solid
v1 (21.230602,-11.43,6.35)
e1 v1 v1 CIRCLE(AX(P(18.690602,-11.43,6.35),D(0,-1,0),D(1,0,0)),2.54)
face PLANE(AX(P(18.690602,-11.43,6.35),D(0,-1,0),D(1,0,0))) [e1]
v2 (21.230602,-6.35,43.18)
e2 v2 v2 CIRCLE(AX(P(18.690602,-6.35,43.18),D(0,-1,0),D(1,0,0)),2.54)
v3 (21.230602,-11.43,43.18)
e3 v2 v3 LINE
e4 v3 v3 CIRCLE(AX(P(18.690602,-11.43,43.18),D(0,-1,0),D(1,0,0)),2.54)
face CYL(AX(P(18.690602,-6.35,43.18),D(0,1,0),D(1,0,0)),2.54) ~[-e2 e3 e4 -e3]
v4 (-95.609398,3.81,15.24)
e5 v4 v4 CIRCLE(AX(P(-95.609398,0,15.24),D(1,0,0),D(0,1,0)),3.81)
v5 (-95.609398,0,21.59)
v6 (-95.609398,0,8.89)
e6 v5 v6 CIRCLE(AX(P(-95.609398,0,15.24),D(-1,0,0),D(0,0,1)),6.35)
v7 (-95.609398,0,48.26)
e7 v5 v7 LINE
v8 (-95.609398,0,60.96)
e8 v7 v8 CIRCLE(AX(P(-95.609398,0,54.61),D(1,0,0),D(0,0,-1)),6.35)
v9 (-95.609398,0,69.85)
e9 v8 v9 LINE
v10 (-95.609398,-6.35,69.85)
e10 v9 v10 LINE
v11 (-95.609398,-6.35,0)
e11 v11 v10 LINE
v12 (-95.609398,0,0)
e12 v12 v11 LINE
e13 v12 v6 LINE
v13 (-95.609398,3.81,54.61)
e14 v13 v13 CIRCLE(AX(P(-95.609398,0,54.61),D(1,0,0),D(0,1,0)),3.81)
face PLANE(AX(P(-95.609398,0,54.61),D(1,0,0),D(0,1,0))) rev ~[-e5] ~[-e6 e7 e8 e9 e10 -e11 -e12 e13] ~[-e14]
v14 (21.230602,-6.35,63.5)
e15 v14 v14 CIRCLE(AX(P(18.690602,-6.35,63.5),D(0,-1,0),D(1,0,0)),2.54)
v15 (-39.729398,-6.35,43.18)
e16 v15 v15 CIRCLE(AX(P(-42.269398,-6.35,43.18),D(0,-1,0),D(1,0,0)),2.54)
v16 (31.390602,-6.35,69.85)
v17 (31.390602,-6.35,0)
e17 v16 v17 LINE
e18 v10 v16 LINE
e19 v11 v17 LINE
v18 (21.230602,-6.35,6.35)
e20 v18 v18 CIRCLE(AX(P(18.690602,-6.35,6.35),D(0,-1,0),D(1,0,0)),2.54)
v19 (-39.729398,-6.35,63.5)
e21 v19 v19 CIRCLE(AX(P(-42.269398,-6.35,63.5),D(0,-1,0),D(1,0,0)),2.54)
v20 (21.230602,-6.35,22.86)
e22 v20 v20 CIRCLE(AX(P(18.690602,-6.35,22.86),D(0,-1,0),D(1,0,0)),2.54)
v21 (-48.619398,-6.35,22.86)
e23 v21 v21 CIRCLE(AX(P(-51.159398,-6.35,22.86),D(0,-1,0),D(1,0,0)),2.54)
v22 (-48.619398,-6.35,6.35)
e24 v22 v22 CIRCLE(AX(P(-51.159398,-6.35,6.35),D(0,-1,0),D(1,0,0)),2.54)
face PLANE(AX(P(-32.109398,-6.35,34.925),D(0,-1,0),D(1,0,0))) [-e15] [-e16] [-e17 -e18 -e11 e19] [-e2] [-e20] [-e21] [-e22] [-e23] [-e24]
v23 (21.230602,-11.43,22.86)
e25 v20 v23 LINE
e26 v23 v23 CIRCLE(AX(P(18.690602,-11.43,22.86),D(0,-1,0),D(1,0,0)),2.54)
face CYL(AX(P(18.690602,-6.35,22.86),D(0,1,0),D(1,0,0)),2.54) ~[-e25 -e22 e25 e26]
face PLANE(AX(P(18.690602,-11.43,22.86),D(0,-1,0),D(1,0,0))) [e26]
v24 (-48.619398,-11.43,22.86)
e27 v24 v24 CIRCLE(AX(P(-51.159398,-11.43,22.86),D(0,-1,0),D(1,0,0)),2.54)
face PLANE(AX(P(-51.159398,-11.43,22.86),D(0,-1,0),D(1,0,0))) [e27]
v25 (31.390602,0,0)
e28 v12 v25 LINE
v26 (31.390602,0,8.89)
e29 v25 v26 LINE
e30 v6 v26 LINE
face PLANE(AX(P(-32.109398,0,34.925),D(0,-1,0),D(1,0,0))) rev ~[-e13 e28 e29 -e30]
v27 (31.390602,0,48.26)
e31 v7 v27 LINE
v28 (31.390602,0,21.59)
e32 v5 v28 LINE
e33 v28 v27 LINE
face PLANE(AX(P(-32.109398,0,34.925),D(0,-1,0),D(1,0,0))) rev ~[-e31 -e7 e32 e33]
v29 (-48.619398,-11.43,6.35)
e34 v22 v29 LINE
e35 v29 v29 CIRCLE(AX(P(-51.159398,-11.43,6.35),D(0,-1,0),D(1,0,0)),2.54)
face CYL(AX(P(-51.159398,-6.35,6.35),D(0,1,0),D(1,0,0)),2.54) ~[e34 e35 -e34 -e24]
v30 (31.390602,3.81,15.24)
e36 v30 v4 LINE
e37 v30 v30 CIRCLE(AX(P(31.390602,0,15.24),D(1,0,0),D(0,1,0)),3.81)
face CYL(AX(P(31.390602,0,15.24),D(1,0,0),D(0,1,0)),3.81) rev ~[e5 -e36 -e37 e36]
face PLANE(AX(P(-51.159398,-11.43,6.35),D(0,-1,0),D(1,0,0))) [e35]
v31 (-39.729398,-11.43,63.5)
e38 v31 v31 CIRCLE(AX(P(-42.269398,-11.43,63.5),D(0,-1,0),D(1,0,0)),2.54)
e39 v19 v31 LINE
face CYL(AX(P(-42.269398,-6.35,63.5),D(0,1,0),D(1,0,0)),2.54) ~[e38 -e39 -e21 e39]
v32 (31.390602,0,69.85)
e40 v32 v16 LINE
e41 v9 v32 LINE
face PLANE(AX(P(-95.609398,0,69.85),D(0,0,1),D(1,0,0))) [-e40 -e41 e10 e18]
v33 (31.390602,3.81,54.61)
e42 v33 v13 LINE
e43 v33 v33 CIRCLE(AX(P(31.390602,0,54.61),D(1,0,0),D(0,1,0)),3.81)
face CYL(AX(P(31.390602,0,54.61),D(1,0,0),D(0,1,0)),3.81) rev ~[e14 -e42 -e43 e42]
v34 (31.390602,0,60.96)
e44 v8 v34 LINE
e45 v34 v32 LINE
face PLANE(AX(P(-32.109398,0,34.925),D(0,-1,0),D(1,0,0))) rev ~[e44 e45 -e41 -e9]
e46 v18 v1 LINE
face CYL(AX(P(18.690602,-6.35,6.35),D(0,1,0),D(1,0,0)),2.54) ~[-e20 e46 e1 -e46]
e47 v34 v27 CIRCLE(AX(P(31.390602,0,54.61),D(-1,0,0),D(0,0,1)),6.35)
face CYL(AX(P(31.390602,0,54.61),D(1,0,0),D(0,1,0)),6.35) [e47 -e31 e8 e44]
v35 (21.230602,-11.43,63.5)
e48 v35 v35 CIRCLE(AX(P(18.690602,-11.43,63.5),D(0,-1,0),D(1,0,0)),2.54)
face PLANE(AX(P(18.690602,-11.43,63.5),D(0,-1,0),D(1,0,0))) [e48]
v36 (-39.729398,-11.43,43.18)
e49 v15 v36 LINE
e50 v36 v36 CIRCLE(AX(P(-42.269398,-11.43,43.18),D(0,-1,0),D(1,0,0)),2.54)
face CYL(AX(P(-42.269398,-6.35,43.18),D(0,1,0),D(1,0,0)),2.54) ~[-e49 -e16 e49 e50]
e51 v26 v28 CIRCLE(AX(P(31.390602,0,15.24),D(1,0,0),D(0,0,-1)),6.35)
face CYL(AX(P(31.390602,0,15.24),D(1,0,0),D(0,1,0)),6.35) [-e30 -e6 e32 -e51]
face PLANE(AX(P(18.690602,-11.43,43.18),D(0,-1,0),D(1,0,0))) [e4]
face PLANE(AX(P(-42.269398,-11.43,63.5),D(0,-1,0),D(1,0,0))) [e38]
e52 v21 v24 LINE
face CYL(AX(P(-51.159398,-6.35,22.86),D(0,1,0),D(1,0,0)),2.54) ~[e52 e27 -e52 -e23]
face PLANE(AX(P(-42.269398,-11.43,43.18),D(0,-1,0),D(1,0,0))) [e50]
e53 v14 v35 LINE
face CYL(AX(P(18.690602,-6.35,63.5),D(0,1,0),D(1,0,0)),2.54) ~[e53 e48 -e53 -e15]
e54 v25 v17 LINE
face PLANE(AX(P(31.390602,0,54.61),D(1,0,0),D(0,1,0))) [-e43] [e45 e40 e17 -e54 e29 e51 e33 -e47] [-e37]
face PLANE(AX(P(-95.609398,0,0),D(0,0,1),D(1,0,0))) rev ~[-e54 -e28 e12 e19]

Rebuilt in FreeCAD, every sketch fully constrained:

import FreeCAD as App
import Part
import Sketcher

V = App.Vector
Q = App.Units.Quantity

doc = App.newDocument("Part")
body = doc.addObject("PartDesign::Body", "Body")

# Sketch on XZ plane
sketch1 = doc.addObject("Sketcher::SketchObject", "Sketch")
body.addObject(sketch1)
sketch1.AttachmentSupport = (doc.XZ_Plane, [""])
sketch1.MapMode = "FlatFace"
sketch1.addGeometry(Part.LineSegment(V(-96, 70, 0), V(-96, 0, 0)), False)
sketch1.addGeometry(Part.LineSegment(V(-96, 0, 0), V(31, 0, 0)), False)
sketch1.addGeometry(Part.LineSegment(V(31, 0, 0), V(31, 70, 0)), False)
sketch1.addGeometry(Part.LineSegment(V(31, 70, 0), V(-96, 70, 0)), False)
sketch1.addConstraint(Sketcher.Constraint("Coincident", 0, 2, 1, 1))
sketch1.addConstraint(Sketcher.Constraint("Coincident", 1, 2, 2, 1))
sketch1.addConstraint(Sketcher.Constraint("Coincident", 2, 2, 3, 1))
sketch1.addConstraint(Sketcher.Constraint("Coincident", 3, 2, 0, 1))
sketch1.addConstraint(Sketcher.Constraint("Vertical", 0))
sketch1.addConstraint(Sketcher.Constraint("Horizontal", 1))
sketch1.addConstraint(Sketcher.Constraint("Vertical", 2))
sketch1.addConstraint(Sketcher.Constraint("Horizontal", 3))
sketch1.addConstraint(Sketcher.Constraint("PointOnObject", 0, 2, -1))
sketch1.addConstraint(Sketcher.Constraint("DistanceX", 1, 1, 1, 2, Q("5 in")))
sketch1.addConstraint(Sketcher.Constraint("DistanceY", 0, 2, 0, 1, Q("2.75 in")))
sketch1.addConstraint(Sketcher.Constraint("DistanceX", 0, 2, -1, 1, 95.609398))
pad1 = doc.addObject("PartDesign::Pad", "Pad")
body.addObject(pad1)
pad1.Profile = sketch1
pad1.Length = Q("0.25 in")

# Sketch on YZ plane
sketch2 = doc.addObject("Sketcher::SketchObject", "Sketch001")
body.addObject(sketch2)
sketch2.AttachmentSupport = (doc.YZ_Plane, [""])
sketch2.MapMode = "FlatFace"
sketch2.AttachmentOffset = App.Placement(V(0, 0, 31.390602), App.Rotation())
sketch2.addGeometry(Part.Circle(V(0, 55, 0), V(0, 0, 1), 6), False)
sketch2.addGeometry(Part.Circle(V(0, 15, 0), V(0, 0, 1), 6), False)
sketch2.addConstraint(Sketcher.Constraint("Equal", 0, 1))
sketch2.addConstraint(Sketcher.Constraint("PointOnObject", 0, 3, -2))
sketch2.addConstraint(Sketcher.Constraint("PointOnObject", 1, 3, -2))
sketch2.addConstraint(Sketcher.Constraint("Diameter", 0, Q("0.5 in")))
sketch2.addConstraint(Sketcher.Constraint("DistanceY", -1, 1, 1, 3, Q("0.6 in")))
sketch2.addConstraint(Sketcher.Constraint("DistanceY", -1, 1, 0, 3, Q("2.15 in")))
pad2 = doc.addObject("PartDesign::Pad", "Pad001")
body.addObject(pad2)
pad2.Profile = sketch2
pad2.Length = Q("5 in")
pad2.Reversed = True

# Sketch on YZ plane
sketch3 = doc.addObject("Sketcher::SketchObject", "Sketch002")
body.addObject(sketch3)
sketch3.AttachmentSupport = (doc.YZ_Plane, [""])
sketch3.MapMode = "FlatFace"
sketch3.AttachmentOffset = App.Placement(V(0, 0, 31.390602), App.Rotation())
sketch3.addGeometry(Part.Circle(V(0, 54.6, 0), V(0, 0, 1), 3.8), False)
sketch3.addGeometry(Part.Circle(V(0, 15.2, 0), V(0, 0, 1), 3.8), False)
sketch3.addConstraint(Sketcher.Constraint("Equal", 0, 1))
sketch3.addConstraint(Sketcher.Constraint("PointOnObject", 0, 3, -2))
sketch3.addConstraint(Sketcher.Constraint("PointOnObject", 1, 3, -2))
sketch3.addConstraint(Sketcher.Constraint("Diameter", 0, Q("0.3 in")))
sketch3.addConstraint(Sketcher.Constraint("DistanceY", -1, 1, 1, 3, Q("0.6 in")))
sketch3.addConstraint(Sketcher.Constraint("DistanceY", -1, 1, 0, 3, Q("2.15 in")))
pocket1 = doc.addObject("PartDesign::Pocket", "Pocket")
body.addObject(pocket1)
pocket1.Profile = sketch3
pocket1.Length = Q("5 in")

# Sketch on XZ plane
sketch4 = doc.addObject("Sketcher::SketchObject", "Sketch003")
body.addObject(sketch4)
sketch4.AttachmentSupport = (doc.XZ_Plane, [""])
sketch4.MapMode = "FlatFace"
sketch4.AttachmentOffset = App.Placement(V(0, 0, 0.25 * 25.4), App.Rotation())
sketch4.addGeometry(Part.Circle(V(-51.2, 6.3, 0), V(0, 0, 1), 2.5), False)
sketch4.addGeometry(Part.Circle(V(-51.2, 22.9, 0), V(0, 0, 1), 2.5), False)
sketch4.addGeometry(Part.Circle(V(18.7, 6.3, 0), V(0, 0, 1), 2.5), False)
sketch4.addGeometry(Part.Circle(V(18.7, 22.9, 0), V(0, 0, 1), 2.5), False)
sketch4.addConstraint(Sketcher.Constraint("Equal", 0, 1))
sketch4.addConstraint(Sketcher.Constraint("Equal", 1, 2))
sketch4.addConstraint(Sketcher.Constraint("Equal", 2, 3))
sketch4.addConstraint(Sketcher.Constraint("Horizontal", 0, 3, 2, 3))
sketch4.addConstraint(Sketcher.Constraint("Horizontal", 1, 3, 3, 3))
sketch4.addConstraint(Sketcher.Constraint("Vertical", 0, 3, 1, 3))
sketch4.addConstraint(Sketcher.Constraint("Vertical", 2, 3, 3, 3))
sketch4.addConstraint(Sketcher.Constraint("Diameter", 0, Q("0.2 in")))
sketch4.addConstraint(Sketcher.Constraint("DistanceY", -1, 1, 1, 3, Q("0.9 in")))
sketch4.addConstraint(Sketcher.Constraint("DistanceY", -1, 1, 0, 3, Q("0.25 in")))
sketch4.addConstraint(Sketcher.Constraint("DistanceX", 0, 3, 2, 3, Q("2.75 in")))
sketch4.addConstraint(Sketcher.Constraint("DistanceX", 0, 3, -1, 1, 51.159398))
pad3 = doc.addObject("PartDesign::Pad", "Pad002")
body.addObject(pad3)
pad3.Profile = sketch4
pad3.Length = Q("0.2 in")

# Sketch on XZ plane
sketch5 = doc.addObject("Sketcher::SketchObject", "Sketch004")
body.addObject(sketch5)
sketch5.AttachmentSupport = (doc.XZ_Plane, [""])
sketch5.MapMode = "FlatFace"
sketch5.AttachmentOffset = App.Placement(V(0, 0, 0.25 * 25.4), App.Rotation())
sketch5.addGeometry(Part.Circle(V(-42.3, 43.2, 0), V(0, 0, 1), 2.5), False)
sketch5.addGeometry(Part.Circle(V(-42.3, 63.5, 0), V(0, 0, 1), 2.5), False)
sketch5.addGeometry(Part.Circle(V(18.7, 43.2, 0), V(0, 0, 1), 2.5), False)
sketch5.addGeometry(Part.Circle(V(18.7, 63.5, 0), V(0, 0, 1), 2.5), False)
sketch5.addConstraint(Sketcher.Constraint("Equal", 0, 1))
sketch5.addConstraint(Sketcher.Constraint("Equal", 1, 2))
sketch5.addConstraint(Sketcher.Constraint("Equal", 2, 3))
sketch5.addConstraint(Sketcher.Constraint("Horizontal", 0, 3, 2, 3))
sketch5.addConstraint(Sketcher.Constraint("Horizontal", 1, 3, 3, 3))
sketch5.addConstraint(Sketcher.Constraint("Vertical", 0, 3, 1, 3))
sketch5.addConstraint(Sketcher.Constraint("Vertical", 2, 3, 3, 3))
sketch5.addConstraint(Sketcher.Constraint("Diameter", 0, Q("0.2 in")))
sketch5.addConstraint(Sketcher.Constraint("DistanceY", -1, 1, 0, 3, Q("1.7 in")))
sketch5.addConstraint(Sketcher.Constraint("DistanceY", -1, 1, 1, 3, Q("2.5 in")))
sketch5.addConstraint(Sketcher.Constraint("DistanceX", 0, 3, 2, 3, Q("2.4 in")))
sketch5.addConstraint(Sketcher.Constraint("DistanceX", 0, 3, -1, 1, 42.269398))
pad4 = doc.addObject("PartDesign::Pad", "Pad003")
body.addObject(pad4)
pad4.Profile = sketch5
pad4.Length = Q("0.2 in")

doc.recompute()
